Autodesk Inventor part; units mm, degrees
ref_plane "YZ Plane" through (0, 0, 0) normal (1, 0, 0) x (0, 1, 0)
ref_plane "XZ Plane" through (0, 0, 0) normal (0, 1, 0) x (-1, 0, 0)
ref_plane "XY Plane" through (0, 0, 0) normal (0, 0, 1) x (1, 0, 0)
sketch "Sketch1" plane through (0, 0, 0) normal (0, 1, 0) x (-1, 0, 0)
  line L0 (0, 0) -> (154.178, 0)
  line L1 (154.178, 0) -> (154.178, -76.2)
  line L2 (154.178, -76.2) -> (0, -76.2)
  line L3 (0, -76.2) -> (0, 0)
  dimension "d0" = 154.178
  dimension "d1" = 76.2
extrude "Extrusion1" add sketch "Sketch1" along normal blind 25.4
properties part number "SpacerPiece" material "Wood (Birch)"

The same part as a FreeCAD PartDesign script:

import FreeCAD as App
import Part
import Sketcher

V = App.Vector
Q = App.Units.Quantity


def add_polygon(sketch, points):
    """Adds a closed chain of lines whose ends are joined by coincident constraints."""
    first, n = sketch.GeometryCount, len(points)
    for a, b in zip(points, points[1:] + points[:1]):
        sketch.addGeometry(Part.LineSegment(App.Vector(*a, 0), App.Vector(*b, 0)), False)
    for i in range(n):
        sketch.addConstraint(Sketcher.Constraint("Coincident", first + i, 2, first + (i + 1) % n, 1))

doc = App.newDocument("Part")
body = doc.addObject("PartDesign::Body", "Body")

# Sketch on XZ plane
sketch1 = body.newObject("Sketcher::SketchObject", "Sketch")
sketch1.AttachmentSupport = (doc.getObject("XZ_Plane"), [""])
sketch1.MapMode = "FlatFace"
add_polygon(sketch1, [(-154, 0), (0, 0), (0, -76), (-154, -76)])  # lines 0-3
sketch1.addConstraint([
    Sketcher.Constraint("Horizontal", 0),
    Sketcher.Constraint("Vertical", 1),
    Sketcher.Constraint("Horizontal", 2),
    Sketcher.Constraint("Vertical", 3),
    Sketcher.Constraint("Coincident", 0, 2, -1, 1),
    Sketcher.Constraint("DistanceY", 1, 2, 1, 1, Q("3 in")),
    Sketcher.Constraint("DistanceX", 0, 1, 0, 2, Q("6.07 in")),
])
pad1 = body.newObject("PartDesign::Pad", "Pad")
pad1.Profile = sketch1
pad1.Length = Q("1 in")
pad1.Reversed = True

doc.recompute()
